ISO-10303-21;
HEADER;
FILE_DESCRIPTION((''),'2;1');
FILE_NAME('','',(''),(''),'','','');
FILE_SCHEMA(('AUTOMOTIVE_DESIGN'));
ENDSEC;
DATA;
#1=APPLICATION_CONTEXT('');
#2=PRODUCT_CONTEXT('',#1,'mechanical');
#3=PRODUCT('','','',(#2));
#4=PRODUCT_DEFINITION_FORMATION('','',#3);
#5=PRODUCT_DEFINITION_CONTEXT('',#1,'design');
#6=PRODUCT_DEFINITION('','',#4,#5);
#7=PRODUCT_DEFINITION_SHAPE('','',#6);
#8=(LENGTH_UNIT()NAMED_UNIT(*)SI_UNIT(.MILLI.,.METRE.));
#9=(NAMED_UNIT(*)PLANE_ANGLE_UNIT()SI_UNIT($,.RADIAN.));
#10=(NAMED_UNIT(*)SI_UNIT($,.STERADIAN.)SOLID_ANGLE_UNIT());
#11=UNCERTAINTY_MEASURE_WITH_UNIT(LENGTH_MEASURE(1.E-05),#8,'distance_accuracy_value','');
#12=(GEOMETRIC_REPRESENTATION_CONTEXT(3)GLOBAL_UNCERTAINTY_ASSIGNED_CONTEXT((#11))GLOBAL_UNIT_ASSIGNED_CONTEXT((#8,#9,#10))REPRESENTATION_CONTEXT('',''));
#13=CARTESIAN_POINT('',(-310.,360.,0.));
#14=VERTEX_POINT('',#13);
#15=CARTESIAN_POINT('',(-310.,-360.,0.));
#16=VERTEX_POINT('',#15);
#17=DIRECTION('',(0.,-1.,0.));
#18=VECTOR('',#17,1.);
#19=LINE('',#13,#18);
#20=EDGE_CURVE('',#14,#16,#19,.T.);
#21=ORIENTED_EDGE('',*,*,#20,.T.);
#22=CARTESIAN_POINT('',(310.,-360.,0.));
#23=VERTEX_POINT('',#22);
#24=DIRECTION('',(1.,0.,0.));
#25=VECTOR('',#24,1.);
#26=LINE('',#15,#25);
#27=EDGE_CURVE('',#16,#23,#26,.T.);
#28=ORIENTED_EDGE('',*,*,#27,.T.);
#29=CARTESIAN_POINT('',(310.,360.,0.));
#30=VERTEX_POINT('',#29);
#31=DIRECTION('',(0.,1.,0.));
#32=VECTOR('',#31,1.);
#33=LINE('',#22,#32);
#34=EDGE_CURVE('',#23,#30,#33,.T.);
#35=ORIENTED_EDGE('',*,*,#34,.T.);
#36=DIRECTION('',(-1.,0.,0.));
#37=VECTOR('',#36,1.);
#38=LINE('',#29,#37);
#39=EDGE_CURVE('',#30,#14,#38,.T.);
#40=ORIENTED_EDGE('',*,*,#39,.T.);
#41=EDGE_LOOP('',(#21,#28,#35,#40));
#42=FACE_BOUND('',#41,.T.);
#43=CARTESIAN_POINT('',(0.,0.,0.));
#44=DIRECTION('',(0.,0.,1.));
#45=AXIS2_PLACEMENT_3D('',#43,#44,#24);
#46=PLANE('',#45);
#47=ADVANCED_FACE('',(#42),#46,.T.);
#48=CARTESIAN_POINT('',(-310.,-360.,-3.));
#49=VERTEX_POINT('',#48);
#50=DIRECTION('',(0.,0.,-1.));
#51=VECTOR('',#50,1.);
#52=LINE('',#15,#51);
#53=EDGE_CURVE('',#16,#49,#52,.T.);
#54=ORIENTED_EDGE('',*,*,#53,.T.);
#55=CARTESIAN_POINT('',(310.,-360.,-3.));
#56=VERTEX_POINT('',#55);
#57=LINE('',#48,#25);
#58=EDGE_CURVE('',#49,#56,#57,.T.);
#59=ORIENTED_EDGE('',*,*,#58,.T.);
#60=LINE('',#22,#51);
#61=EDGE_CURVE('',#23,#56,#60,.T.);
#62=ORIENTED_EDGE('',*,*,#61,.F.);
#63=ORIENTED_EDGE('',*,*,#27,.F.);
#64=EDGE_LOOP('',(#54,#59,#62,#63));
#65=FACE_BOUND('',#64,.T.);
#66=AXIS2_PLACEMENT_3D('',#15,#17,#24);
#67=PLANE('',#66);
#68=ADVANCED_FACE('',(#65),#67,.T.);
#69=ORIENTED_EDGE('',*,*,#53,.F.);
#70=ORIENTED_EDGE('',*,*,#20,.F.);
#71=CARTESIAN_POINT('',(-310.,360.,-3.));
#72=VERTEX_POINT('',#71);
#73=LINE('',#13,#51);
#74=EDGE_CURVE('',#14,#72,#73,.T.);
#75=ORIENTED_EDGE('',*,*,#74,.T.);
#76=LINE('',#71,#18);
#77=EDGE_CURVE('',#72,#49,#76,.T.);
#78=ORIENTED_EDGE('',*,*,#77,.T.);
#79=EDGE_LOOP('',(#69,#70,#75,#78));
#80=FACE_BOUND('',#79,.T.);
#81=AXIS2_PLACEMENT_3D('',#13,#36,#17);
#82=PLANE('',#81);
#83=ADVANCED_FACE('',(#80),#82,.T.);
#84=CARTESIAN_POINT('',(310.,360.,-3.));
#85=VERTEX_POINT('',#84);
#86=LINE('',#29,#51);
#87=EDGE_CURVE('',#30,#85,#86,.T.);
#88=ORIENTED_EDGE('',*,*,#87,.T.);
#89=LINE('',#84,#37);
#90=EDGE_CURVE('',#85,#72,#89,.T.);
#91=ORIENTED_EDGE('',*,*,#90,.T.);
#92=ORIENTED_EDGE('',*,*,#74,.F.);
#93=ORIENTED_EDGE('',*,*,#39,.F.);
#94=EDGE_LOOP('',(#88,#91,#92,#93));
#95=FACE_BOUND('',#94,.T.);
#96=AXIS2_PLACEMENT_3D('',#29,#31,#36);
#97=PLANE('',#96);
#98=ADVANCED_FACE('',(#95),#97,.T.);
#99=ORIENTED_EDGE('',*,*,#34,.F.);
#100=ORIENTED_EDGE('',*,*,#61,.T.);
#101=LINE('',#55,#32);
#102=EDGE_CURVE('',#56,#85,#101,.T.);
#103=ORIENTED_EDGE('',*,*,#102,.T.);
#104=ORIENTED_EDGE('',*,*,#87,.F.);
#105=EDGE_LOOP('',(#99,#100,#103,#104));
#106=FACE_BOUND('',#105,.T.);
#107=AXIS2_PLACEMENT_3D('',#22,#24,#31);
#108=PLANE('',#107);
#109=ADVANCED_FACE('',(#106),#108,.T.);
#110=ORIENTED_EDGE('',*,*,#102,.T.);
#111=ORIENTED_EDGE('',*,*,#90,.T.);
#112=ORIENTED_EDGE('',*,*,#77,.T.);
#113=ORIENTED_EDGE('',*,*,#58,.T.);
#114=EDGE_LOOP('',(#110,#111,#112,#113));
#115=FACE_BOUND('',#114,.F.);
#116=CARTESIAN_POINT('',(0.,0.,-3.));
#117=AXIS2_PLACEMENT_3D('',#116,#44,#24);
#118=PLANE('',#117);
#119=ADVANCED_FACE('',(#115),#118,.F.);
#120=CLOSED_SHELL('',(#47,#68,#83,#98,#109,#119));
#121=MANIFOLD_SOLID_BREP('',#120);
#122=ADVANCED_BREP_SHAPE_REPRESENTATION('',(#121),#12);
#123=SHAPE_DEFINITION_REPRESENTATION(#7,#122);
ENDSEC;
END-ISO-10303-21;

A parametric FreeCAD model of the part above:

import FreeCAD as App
import Part
import Sketcher

V = App.Vector
Q = App.Units.Quantity


def add_polygon(sketch, points):
    """Adds a closed chain of lines whose ends are joined by coincident constraints."""
    first, n = sketch.GeometryCount, len(points)
    for a, b in zip(points, points[1:] + points[:1]):
        sketch.addGeometry(Part.LineSegment(App.Vector(*a, 0), App.Vector(*b, 0)), False)
    for i in range(n):
        sketch.addConstraint(Sketcher.Constraint("Coincident", first + i, 2, first + (i + 1) % n, 1))

doc = App.newDocument("Part")
body = doc.addObject("PartDesign::Body", "Body")

# Sketch on XY plane
sketch1 = doc.addObject("Sketcher::SketchObject", "Sketch")
body.addObject(sketch1)
sketch1.AttachmentSupport = (doc.XY_Plane, [""])
sketch1.MapMode = "FlatFace"
add_polygon(sketch1, [(-310, 360), (-310, -360), (310, -360), (310, 360)])  # lines 0-3
sketch1.addConstraint([
    Sketcher.Constraint("Vertical", 0),
    Sketcher.Constraint("Horizontal", 1),
    Sketcher.Constraint("Vertical", 2),
    Sketcher.Constraint("Horizontal", 3),
    Sketcher.Constraint("Symmetric", 0, 2, 2, 2, -1, 1),
    Sketcher.Constraint("DistanceX", 1, 1, 1, 2, Q("620 mm")),
    Sketcher.Constraint("DistanceY", 0, 2, 0, 1, Q("720 mm")),
])
pad1 = doc.addObject("PartDesign::Pad", "Pad")
body.addObject(pad1)
pad1.Profile = sketch1
pad1.Length = 3
pad1.Reversed = True

doc.recompute()
